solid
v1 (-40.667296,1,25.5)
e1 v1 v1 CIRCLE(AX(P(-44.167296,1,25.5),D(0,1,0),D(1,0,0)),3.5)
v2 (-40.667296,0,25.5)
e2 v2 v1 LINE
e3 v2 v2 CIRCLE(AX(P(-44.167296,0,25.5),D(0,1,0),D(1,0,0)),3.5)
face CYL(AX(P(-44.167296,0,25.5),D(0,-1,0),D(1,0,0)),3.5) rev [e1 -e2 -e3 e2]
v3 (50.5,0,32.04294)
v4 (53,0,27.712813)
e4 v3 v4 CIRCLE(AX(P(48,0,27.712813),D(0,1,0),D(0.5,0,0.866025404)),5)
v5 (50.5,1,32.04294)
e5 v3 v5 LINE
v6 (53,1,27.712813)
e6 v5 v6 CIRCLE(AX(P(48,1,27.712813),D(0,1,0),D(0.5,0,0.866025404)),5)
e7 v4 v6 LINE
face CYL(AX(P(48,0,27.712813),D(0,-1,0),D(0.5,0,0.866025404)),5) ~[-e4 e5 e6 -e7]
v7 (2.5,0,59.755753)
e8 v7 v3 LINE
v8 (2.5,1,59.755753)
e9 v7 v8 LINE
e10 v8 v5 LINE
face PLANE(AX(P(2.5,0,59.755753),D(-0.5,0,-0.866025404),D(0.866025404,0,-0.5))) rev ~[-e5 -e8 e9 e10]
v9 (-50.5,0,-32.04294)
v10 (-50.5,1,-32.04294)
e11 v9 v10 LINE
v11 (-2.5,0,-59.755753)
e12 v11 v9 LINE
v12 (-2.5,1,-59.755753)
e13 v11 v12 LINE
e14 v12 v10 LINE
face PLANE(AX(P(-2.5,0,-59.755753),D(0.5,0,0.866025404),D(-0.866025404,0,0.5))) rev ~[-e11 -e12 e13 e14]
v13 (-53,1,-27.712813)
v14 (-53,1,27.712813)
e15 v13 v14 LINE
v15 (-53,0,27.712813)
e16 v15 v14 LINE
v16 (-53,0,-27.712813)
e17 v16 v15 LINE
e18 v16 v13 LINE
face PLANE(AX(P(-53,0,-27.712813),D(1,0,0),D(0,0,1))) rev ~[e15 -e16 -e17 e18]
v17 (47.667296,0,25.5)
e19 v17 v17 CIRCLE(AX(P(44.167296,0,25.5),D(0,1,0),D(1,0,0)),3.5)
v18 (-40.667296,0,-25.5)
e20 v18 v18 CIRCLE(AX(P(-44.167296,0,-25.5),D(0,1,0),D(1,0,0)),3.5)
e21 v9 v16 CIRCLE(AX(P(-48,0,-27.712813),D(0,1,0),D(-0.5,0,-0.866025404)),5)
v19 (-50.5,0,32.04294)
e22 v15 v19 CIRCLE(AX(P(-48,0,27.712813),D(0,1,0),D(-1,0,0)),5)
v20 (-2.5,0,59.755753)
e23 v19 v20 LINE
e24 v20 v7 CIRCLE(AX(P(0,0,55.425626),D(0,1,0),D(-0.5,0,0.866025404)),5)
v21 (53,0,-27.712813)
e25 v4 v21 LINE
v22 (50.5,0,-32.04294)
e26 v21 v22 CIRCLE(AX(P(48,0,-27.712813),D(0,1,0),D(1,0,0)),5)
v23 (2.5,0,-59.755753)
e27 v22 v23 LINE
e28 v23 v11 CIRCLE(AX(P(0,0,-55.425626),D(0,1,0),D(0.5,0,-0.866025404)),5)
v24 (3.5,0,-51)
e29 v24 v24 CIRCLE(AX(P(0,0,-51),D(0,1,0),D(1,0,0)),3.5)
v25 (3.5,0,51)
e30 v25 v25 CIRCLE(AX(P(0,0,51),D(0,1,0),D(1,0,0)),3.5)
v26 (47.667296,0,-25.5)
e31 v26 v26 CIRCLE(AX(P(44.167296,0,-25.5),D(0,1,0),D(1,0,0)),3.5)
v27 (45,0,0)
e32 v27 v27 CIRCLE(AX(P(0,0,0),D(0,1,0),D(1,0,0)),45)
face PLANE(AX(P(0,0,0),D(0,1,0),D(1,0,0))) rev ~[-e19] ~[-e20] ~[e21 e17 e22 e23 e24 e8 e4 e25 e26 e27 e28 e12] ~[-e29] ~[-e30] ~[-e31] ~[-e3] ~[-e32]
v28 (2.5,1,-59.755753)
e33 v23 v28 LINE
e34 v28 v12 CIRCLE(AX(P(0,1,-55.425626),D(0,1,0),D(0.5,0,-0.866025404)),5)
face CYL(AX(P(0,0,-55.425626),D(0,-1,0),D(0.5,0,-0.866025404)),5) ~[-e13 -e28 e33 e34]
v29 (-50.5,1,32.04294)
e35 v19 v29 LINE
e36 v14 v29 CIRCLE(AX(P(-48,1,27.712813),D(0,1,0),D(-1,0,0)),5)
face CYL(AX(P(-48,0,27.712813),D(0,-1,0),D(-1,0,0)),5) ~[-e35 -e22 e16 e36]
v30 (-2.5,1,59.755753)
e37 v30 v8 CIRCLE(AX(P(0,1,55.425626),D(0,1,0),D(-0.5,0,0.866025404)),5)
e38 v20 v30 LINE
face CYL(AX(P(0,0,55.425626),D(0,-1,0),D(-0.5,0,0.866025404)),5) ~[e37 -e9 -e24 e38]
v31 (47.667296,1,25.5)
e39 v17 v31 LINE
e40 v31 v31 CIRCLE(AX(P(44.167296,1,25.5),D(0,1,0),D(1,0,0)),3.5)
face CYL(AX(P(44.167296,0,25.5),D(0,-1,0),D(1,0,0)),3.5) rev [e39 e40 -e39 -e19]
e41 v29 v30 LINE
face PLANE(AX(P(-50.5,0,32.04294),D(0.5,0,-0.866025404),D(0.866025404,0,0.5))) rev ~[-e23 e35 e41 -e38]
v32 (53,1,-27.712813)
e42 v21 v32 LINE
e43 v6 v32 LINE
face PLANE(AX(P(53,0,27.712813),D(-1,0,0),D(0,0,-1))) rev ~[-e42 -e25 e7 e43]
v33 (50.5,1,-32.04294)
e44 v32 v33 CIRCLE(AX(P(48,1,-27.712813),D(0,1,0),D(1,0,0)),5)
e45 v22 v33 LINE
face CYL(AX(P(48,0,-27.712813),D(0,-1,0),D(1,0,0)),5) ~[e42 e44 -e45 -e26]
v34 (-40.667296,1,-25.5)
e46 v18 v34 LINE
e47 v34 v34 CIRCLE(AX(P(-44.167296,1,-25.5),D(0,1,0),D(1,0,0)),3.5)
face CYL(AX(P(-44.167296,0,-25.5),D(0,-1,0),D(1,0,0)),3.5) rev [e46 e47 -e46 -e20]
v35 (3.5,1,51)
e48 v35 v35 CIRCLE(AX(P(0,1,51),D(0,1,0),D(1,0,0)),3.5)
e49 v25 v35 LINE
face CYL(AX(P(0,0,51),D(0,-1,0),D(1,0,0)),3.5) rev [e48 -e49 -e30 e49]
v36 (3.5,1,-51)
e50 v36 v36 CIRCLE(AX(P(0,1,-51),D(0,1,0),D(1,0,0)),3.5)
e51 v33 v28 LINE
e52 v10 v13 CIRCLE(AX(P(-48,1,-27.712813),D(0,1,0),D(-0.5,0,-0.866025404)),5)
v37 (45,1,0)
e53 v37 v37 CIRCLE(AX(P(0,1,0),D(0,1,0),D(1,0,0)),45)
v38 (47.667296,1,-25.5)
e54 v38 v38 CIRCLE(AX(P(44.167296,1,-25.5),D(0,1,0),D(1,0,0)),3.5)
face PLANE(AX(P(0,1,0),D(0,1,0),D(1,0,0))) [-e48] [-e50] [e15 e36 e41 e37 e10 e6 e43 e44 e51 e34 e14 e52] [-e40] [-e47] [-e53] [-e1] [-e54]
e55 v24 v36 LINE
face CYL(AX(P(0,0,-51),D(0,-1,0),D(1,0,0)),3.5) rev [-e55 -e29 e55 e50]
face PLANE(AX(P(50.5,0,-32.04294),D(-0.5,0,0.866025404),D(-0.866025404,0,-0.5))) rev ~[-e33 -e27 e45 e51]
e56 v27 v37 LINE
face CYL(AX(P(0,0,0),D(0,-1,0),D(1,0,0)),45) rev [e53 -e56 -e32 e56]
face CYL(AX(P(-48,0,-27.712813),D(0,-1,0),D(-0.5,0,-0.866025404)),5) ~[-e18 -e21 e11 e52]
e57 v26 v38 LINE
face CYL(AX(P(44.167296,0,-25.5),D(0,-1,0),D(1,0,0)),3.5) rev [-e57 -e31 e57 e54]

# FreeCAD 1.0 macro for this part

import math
import FreeCAD as App
import Part
import Sketcher

V = App.Vector
Q = App.Units.Quantity

doc = App.newDocument("Part")
body = doc.addObject("PartDesign::Body", "Body")

# Sketch on XZ plane
sketch1 = body.newObject("Sketcher::SketchObject", "Sketch")
sketch1.AttachmentSupport = (doc.getObject("XZ_Plane"), [""])
sketch1.MapMode = "FlatFace"
sketch1.addGeometry(Part.LineSegment(V(-2.5, -59.755753, 0), V(-50.5, -32.04294, 0)), False)
sketch1.addGeometry(Part.ArcOfCircle(Part.Circle(V(-48, -27.712813, 0), V(0, 0, 1), 5), math.radians(180), math.radians(240)), False)
sketch1.addGeometry(Part.LineSegment(V(-53, -27.712813, 0), V(-53, 27.712813, 0)), False)
sketch1.addGeometry(Part.ArcOfCircle(Part.Circle(V(-48, 27.712813, 0), V(0, 0, 1), 5), math.radians(120), math.radians(180)), False)
sketch1.addGeometry(Part.LineSegment(V(-50.5, 32.04294, 0), V(-2.5, 59.755753, 0)), False)
sketch1.addGeometry(Part.ArcOfCircle(Part.Circle(V(0, 55.425626, 0), V(0, 0, 1), 5), math.radians(60), math.radians(120)), False)
sketch1.addGeometry(Part.LineSegment(V(2.5, 59.755753, 0), V(50.5, 32.04294, 0)), False)
sketch1.addGeometry(Part.ArcOfCircle(Part.Circle(V(48, 27.712813, 0), V(0, 0, 1), 5), math.radians(0), math.radians(60)), False)
sketch1.addGeometry(Part.LineSegment(V(53, 27.712813, 0), V(53, -27.712813, 0)), False)
sketch1.addGeometry(Part.ArcOfCircle(Part.Circle(V(48, -27.712813, 0), V(0, 0, 1), 5), math.radians(-60), math.radians(0)), False)
sketch1.addGeometry(Part.LineSegment(V(50.5, -32.04294, 0), V(2.5, -59.755753, 0)), False)
sketch1.addGeometry(Part.ArcOfCircle(Part.Circle(V(0, -55.425626, 0), V(0, 0, 1), 5), math.radians(-120), math.radians(-60)), False)
sketch1.addGeometry(Part.Circle(V(-44.167296, 25.5, 0), V(0, 0, 1), 3.5), False)
sketch1.addGeometry(Part.Circle(V(0, 51, 0), V(0, 0, 1), 3.5), False)
sketch1.addGeometry(Part.Circle(V(44.167296, 25.5, 0), V(0, 0, 1), 3.5), False)
sketch1.addGeometry(Part.Circle(V(-44.167296, -25.5, 0), V(0, 0, 1), 3.5), False)
sketch1.addGeometry(Part.Circle(V(0, 0, 0), V(0, 0, 1), 45), False)
sketch1.addGeometry(Part.Circle(V(44.167296, -25.5, 0), V(0, 0, 1), 3.5), False)
sketch1.addGeometry(Part.Circle(V(0, -51, 0), V(0, 0, 1), 3.5), False)
sketch1.addConstraint(Sketcher.Constraint("Tangent", 0, 2, 1, 2))
sketch1.addConstraint(Sketcher.Constraint("Tangent", 1, 1, 2, 1))
sketch1.addConstraint(Sketcher.Constraint("Tangent", 2, 2, 3, 2))
sketch1.addConstraint(Sketcher.Constraint("Tangent", 3, 1, 4, 1))
sketch1.addConstraint(Sketcher.Constraint("Tangent", 4, 2, 5, 2))
sketch1.addConstraint(Sketcher.Constraint("Tangent", 5, 1, 6, 1))
sketch1.addConstraint(Sketcher.Constraint("Tangent", 6, 2, 7, 2))
sketch1.addConstraint(Sketcher.Constraint("Tangent", 7, 1, 8, 1))
sketch1.addConstraint(Sketcher.Constraint("Tangent", 8, 2, 9, 2))
sketch1.addConstraint(Sketcher.Constraint("Tangent", 9, 1, 10, 1))
sketch1.addConstraint(Sketcher.Constraint("Tangent", 10, 2, 11, 2))
sketch1.addConstraint(Sketcher.Constraint("Tangent", 11, 1, 0, 1))
sketch1.addConstraint(Sketcher.Constraint("Vertical", 2))
sketch1.addConstraint(Sketcher.Constraint("Vertical", 8))
sketch1.addConstraint(Sketcher.Constraint("Coincident", 16, 3, -1, 1))
sketch1.addConstraint(Sketcher.Constraint("Equal", 1, 3))
sketch1.addConstraint(Sketcher.Constraint("Equal", 3, 5))
sketch1.addConstraint(Sketcher.Constraint("Equal", 5, 7))
sketch1.addConstraint(Sketcher.Constraint("Equal", 7, 9))
sketch1.addConstraint(Sketcher.Constraint("Equal", 9, 11))
sketch1.addConstraint(Sketcher.Constraint("Equal", 12, 13))
sketch1.addConstraint(Sketcher.Constraint("Equal", 13, 14))
sketch1.addConstraint(Sketcher.Constraint("Equal", 14, 15))
sketch1.addConstraint(Sketcher.Constraint("Equal", 15, 17))
sketch1.addConstraint(Sketcher.Constraint("Equal", 17, 18))
sketch1.addConstraint(Sketcher.Constraint("Symmetric", 1, 3, 7, 3, -1, 1))
sketch1.addConstraint(Sketcher.Constraint("Symmetric", 5, 3, 11, 3, -1, 1))
sketch1.addConstraint(Sketcher.Constraint("Symmetric", 14, 3, 15, 3, -1, 1))
sketch1.addConstraint(Sketcher.Constraint("Symmetric", 12, 3, 17, 3, -1, 1))
sketch1.addConstraint(Sketcher.Constraint("Symmetric", 13, 3, 18, 3, -1, 1))
sketch1.addConstraint(Sketcher.Constraint("Symmetric", 12, 3, 14, 3, -2))
sketch1.addConstraint(Sketcher.Constraint("Symmetric", 4, 2, 5, 1, -2))
sketch1.addConstraint(Sketcher.Constraint("PointOnObject", 13, 3, -2))
sketch1.addConstraint(Sketcher.Constraint("Parallel", 4, 10))
sketch1.addConstraint(Sketcher.Constraint("Diameter", 12, Q("7 mm")))
sketch1.addConstraint(Sketcher.Constraint("Diameter", 16, Q("90 mm")))
sketch1.addConstraint(Sketcher.Constraint("Radius", 1, Q("5 mm")))
sketch1.addConstraint(Sketcher.Constraint("Angle", 0, Q("150 deg")))
sketch1.addConstraint(Sketcher.Constraint("DistanceX", 1, 3, -1, 1, Q("48 mm")))
sketch1.addConstraint(Sketcher.Constraint("DistanceY", -1, 1, 13, 3, Q("51 mm")))
sketch1.addConstraint(Sketcher.Constraint("DistanceY", 15, 3, 12, 3, Q("51 mm")))
sketch1.addConstraint(Sketcher.Constraint("DistanceY", 2, 1, 2, 2, Q("55.425626 mm")))
sketch1.addConstraint(Sketcher.Constraint("DistanceX", 12, 3, 14, 3, Q("88.334591 mm")))
pad1 = body.newObject("PartDesign::Pad", "Pad")
pad1.Profile = sketch1
pad1.Length = 1
pad1.Reversed = True

doc.recompute()
